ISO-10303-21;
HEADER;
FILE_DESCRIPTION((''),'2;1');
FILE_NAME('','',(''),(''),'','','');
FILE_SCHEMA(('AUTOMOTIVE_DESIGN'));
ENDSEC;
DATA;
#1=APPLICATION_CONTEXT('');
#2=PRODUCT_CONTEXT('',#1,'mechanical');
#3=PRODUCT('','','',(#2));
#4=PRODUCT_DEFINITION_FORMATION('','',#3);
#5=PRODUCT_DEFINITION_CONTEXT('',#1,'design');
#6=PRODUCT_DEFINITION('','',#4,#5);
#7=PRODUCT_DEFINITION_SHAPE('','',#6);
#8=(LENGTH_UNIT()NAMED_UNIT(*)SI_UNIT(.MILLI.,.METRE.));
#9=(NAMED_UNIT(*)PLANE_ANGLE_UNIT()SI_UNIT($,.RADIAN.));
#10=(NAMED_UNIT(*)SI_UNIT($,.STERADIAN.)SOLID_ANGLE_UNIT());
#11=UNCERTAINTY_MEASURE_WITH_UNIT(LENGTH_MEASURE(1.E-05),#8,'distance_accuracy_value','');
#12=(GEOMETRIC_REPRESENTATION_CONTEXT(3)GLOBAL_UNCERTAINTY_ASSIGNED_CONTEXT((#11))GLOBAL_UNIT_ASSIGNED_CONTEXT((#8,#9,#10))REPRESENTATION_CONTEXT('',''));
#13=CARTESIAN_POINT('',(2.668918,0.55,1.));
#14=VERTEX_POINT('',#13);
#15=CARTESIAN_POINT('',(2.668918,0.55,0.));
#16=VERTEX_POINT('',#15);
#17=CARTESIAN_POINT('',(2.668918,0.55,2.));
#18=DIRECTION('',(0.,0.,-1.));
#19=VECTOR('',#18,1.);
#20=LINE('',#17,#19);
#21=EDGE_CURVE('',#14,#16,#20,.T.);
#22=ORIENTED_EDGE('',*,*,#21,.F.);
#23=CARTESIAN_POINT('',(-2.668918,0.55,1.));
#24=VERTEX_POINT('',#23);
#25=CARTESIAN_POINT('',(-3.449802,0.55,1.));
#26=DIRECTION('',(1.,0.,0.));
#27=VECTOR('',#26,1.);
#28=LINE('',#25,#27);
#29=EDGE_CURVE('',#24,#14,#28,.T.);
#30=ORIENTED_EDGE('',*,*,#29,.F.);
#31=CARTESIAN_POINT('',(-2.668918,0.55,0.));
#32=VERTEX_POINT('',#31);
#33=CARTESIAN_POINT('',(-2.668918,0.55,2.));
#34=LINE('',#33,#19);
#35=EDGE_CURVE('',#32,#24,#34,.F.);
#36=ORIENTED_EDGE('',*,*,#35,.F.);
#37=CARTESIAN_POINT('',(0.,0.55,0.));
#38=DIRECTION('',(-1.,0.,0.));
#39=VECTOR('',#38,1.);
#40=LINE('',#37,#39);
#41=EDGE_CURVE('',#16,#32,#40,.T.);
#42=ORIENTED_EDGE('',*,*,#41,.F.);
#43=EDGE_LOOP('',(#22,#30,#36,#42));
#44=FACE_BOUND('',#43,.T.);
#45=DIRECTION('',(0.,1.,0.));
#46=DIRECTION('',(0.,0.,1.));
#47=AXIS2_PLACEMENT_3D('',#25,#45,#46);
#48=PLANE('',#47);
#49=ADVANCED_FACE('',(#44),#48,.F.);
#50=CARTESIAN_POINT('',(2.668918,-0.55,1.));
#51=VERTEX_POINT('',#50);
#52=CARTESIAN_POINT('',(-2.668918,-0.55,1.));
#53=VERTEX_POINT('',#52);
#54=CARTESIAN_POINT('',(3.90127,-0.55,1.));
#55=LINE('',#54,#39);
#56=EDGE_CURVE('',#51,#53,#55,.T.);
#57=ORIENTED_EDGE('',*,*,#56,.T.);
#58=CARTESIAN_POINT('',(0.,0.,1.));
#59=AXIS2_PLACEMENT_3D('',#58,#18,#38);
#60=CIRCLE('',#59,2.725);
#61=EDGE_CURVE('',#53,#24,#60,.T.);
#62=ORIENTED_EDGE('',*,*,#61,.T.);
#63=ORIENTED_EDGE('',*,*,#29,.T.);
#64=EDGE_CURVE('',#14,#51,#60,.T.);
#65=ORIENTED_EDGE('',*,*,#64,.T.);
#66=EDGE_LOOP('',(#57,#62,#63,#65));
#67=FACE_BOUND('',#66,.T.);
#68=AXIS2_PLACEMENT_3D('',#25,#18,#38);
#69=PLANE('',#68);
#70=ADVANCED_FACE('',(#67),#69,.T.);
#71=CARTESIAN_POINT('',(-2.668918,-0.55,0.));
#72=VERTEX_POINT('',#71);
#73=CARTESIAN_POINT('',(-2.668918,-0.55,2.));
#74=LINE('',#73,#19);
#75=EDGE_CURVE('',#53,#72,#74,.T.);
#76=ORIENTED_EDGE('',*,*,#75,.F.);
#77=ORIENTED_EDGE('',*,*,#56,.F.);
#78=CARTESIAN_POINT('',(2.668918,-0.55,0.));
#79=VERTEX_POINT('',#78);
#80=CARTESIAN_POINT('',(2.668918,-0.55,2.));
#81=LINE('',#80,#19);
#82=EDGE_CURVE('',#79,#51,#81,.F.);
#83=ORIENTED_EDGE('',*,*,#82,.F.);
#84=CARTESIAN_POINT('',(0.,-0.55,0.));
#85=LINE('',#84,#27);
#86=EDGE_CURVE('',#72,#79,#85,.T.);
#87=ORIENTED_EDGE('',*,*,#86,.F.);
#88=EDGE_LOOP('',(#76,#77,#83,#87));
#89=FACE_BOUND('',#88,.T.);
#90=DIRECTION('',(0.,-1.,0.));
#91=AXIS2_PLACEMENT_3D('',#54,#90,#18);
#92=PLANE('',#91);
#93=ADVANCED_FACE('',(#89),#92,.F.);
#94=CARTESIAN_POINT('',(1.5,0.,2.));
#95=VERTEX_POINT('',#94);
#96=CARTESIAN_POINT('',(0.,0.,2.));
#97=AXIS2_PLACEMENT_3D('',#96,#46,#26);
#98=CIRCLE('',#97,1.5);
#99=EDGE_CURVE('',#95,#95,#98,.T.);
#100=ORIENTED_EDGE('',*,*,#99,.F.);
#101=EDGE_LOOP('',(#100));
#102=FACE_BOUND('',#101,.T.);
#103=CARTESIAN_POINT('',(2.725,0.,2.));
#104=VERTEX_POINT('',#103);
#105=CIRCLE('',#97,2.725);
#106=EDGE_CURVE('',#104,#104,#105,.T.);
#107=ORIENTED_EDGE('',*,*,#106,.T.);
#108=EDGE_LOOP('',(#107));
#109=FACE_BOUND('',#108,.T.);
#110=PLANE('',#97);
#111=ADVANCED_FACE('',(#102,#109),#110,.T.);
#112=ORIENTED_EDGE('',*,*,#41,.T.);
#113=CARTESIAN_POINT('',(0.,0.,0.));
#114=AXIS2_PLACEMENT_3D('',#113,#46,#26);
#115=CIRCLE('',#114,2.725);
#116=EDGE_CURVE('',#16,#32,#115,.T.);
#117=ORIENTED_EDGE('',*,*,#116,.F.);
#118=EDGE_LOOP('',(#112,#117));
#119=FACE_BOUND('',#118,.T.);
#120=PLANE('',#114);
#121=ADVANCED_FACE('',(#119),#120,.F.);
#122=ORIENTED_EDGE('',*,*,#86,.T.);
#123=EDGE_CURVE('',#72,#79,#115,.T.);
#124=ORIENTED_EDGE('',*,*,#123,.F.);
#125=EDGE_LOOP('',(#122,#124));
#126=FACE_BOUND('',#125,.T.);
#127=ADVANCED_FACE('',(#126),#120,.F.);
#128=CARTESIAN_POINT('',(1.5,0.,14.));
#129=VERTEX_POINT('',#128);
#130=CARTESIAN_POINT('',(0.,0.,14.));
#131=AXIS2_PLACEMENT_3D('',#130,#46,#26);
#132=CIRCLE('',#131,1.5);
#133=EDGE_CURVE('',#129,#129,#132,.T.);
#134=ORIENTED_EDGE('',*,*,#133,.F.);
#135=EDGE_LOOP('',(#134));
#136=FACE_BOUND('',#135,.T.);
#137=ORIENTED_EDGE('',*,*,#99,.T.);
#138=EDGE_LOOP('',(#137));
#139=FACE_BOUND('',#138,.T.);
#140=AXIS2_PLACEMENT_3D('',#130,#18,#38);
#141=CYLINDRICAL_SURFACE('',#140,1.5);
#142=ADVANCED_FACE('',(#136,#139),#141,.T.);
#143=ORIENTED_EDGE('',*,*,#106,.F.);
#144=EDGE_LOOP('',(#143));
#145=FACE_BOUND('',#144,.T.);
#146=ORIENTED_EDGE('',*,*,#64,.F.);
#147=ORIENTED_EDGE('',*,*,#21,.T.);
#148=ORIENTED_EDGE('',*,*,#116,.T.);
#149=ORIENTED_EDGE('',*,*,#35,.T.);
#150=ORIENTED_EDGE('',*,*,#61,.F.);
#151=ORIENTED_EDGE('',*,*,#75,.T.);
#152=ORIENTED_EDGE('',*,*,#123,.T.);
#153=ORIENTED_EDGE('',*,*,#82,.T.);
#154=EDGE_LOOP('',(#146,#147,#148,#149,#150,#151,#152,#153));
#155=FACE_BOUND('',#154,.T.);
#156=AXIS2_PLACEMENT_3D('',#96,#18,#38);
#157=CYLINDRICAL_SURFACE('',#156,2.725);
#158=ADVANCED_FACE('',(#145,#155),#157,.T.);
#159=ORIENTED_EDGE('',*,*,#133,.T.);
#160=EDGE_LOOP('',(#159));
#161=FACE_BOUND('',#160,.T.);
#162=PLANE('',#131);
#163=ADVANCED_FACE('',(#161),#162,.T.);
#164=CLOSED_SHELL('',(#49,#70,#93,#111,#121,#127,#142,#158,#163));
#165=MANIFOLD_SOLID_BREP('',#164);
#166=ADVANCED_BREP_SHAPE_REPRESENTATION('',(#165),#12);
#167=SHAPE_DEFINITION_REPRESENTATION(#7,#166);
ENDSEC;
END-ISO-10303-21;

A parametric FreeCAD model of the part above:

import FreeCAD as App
import Part
import Sketcher
from FreeCAD import Vector
Q = App.Units.Quantity

doc = App.newDocument("Part")
body = doc.addObject("PartDesign::Body", "Body")

sketch1 = body.newObject("Sketcher::SketchObject", "Sketch")
sketch1.AttachmentSupport = (doc.getObject("XY_Plane"), [""])
sketch1.MapMode = "FlatFace"
sketch1.addGeometry(Part.Circle(Vector(0, 0, 0), Vector(0, 0, 1), 2.7), False)
sketch1.addConstraint([
    Sketcher.Constraint("Coincident", 0, 3, -1, 1),
    Sketcher.Constraint("Diameter", 0, Q("5.45 mm")),
])
pad1 = body.newObject("PartDesign::Pad", "Pad")
pad1.Profile = sketch1
pad1.Length = 2

sketch2 = body.newObject("Sketcher::SketchObject", "Sketch001")
sketch2.AttachmentSupport = (doc.getObject("XY_Plane"), [""])
sketch2.MapMode = "FlatFace"
sketch2.addGeometry([
    Part.LineSegment(Vector(-3.4, 0.6, 0), Vector(3.9, 0.6, 0)),
    Part.LineSegment(Vector(3.9, 0.6, 0), Vector(3.9, -0.6, 0)),
    Part.LineSegment(Vector(3.9, -0.6, 0), Vector(-3.4, -0.6, 0)),
    Part.LineSegment(Vector(-3.4, -0.6, 0), Vector(-3.4, 0.6, 0)),
], False)
sketch2.addConstraint([
    Sketcher.Constraint("Coincident", 0, 2, 1, 1),
    Sketcher.Constraint("Coincident", 1, 2, 2, 1),
    Sketcher.Constraint("Coincident", 2, 2, 3, 1),
    Sketcher.Constraint("Coincident", 3, 2, 0, 1),
    Sketcher.Constraint("Horizontal", 0),
    Sketcher.Constraint("Vertical", 1),
    Sketcher.Constraint("Horizontal", 2),
    Sketcher.Constraint("Vertical", 3),
    Sketcher.Constraint("DistanceY", 1, 2, 1, 1, Q("1.1 mm")),
    Sketcher.Constraint("DistanceY", -1, 1, 0, 2, Q("0.55 mm")),
    Sketcher.Constraint("DistanceX", 0, 1, 0, 2, Q("7.351071 mm")),
    Sketcher.Constraint("DistanceX", 2, 2, -1, 1, Q("3.449802 mm")),
])
pocket1 = body.newObject("PartDesign::Pocket", "Pocket")
pocket1.Profile = sketch2
pocket1.Length = 1
pocket1.Reversed = True

sketch3 = body.newObject("Sketcher::SketchObject", "Sketch002")
sketch3.AttachmentSupport = (doc.getObject("XY_Plane"), [""])
sketch3.MapMode = "FlatFace"
sketch3.AttachmentOffset = App.Placement(Vector(0, 0, 2), App.Rotation())
sketch3.addGeometry(Part.Circle(Vector(0, 0, 0), Vector(0, 0, 1), 1.5), False)
sketch3.addConstraint([
    Sketcher.Constraint("Coincident", 0, 3, -1, 1),
    Sketcher.Constraint("Diameter", 0, Q("3 mm")),
])
pad2 = body.newObject("PartDesign::Pad", "Pad001")
pad2.Profile = sketch3
pad2.Length = 12

doc.recompute()
